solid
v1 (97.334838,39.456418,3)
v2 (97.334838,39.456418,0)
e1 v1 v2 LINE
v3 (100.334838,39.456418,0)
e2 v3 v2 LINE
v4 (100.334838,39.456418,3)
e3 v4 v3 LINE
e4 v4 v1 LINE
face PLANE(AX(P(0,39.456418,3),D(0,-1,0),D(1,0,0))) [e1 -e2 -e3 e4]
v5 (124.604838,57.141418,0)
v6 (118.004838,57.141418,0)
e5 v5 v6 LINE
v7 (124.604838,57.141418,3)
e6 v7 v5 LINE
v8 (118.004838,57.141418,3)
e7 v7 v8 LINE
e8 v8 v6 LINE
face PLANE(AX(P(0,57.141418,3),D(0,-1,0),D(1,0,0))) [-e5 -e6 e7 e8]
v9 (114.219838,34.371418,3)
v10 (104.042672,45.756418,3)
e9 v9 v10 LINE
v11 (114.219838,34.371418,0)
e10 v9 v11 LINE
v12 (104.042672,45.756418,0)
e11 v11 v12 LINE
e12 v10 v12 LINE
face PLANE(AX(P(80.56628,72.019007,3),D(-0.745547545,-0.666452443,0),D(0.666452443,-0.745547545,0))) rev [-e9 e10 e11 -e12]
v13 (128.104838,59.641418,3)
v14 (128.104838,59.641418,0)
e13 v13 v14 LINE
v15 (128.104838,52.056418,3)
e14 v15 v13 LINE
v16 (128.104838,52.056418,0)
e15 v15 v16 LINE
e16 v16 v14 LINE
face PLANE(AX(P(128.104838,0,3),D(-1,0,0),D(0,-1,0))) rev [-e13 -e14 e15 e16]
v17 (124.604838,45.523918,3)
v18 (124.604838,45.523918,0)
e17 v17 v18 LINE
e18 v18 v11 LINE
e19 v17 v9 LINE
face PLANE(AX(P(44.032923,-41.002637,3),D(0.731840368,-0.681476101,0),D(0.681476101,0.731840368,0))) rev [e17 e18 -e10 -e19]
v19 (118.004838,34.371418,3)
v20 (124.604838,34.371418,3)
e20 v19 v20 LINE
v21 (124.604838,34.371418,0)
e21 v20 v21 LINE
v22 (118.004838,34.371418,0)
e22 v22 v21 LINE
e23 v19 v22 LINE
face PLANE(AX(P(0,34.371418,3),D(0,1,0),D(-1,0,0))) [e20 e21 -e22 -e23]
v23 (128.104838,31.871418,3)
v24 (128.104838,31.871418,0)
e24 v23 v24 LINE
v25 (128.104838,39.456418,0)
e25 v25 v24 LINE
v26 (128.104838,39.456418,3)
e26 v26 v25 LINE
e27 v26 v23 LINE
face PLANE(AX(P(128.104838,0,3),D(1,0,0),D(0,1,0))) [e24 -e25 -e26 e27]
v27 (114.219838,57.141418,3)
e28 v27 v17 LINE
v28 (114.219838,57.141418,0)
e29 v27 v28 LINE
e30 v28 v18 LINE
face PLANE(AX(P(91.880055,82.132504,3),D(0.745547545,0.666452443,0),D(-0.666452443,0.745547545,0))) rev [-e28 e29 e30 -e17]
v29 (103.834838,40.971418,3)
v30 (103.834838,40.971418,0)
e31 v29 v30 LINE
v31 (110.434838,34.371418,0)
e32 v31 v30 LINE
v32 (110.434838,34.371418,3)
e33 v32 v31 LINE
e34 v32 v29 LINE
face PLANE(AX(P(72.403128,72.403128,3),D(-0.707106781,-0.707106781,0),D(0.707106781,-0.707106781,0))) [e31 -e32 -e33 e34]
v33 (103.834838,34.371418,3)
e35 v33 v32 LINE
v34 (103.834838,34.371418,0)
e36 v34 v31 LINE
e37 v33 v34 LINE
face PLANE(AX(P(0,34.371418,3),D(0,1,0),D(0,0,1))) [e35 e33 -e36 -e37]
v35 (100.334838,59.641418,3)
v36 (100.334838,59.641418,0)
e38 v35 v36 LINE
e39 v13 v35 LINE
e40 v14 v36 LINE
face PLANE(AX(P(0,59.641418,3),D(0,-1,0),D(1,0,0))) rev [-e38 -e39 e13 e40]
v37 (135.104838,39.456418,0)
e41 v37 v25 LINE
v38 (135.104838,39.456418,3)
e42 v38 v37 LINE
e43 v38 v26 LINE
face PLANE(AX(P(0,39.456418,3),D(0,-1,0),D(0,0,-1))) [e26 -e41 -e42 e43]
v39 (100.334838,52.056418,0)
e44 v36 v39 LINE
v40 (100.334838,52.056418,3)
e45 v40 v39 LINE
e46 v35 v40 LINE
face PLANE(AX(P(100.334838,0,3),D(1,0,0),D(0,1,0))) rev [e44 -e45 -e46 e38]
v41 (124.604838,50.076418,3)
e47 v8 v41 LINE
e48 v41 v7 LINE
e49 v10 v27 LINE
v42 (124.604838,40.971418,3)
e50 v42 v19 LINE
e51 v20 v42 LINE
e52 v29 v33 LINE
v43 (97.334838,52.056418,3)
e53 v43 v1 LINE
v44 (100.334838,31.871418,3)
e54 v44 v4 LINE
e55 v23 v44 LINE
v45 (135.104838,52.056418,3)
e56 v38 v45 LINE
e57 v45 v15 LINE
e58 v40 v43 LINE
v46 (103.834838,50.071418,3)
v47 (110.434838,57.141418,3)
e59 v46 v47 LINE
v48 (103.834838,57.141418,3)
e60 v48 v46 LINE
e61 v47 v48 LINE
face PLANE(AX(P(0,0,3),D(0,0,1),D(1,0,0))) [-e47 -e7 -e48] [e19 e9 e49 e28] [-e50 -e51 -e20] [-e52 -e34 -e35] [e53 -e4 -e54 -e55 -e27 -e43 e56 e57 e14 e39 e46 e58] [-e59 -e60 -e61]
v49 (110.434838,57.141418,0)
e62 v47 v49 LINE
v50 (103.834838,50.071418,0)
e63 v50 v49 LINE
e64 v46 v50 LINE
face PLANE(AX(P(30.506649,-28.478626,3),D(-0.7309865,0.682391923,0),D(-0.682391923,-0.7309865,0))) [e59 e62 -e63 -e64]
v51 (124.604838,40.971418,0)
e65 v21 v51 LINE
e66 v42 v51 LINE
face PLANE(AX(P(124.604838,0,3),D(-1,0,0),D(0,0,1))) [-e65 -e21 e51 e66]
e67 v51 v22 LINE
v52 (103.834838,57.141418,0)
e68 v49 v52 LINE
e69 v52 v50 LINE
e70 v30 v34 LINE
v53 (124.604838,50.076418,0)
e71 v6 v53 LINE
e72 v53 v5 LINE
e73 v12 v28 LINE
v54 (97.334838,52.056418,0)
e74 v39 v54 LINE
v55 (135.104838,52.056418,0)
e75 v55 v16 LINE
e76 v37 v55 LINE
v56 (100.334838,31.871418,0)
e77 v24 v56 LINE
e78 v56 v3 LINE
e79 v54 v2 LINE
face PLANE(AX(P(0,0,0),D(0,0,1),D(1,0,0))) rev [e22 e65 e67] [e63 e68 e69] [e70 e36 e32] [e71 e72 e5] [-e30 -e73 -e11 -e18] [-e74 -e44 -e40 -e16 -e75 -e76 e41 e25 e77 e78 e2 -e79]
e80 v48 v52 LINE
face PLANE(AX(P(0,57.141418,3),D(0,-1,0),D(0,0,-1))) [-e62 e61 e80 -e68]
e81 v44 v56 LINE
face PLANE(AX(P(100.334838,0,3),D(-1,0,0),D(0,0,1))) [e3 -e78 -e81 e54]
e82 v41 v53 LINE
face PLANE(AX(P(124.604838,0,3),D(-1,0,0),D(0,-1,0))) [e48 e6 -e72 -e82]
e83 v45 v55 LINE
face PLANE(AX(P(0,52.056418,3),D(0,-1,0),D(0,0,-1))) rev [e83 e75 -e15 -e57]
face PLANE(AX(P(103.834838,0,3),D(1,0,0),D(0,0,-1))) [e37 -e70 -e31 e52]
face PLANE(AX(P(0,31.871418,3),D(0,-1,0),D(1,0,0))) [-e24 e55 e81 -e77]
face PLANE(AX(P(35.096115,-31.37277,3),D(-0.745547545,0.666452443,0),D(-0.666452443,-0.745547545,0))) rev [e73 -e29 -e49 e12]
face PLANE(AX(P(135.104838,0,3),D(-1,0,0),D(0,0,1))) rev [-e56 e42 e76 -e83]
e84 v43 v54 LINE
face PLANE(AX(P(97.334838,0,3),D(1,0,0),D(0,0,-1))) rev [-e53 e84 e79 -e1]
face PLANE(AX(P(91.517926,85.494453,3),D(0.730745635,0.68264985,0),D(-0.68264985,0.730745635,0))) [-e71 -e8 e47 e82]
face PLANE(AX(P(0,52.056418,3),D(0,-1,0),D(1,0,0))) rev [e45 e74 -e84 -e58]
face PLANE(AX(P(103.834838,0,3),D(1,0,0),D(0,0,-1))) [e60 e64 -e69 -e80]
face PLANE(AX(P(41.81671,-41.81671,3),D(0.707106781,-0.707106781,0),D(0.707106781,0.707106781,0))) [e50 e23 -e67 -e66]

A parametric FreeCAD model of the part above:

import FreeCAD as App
import Part
import Sketcher
from FreeCAD import Vector

doc = App.newDocument("Part")
body = doc.addObject("PartDesign::Body", "Body")

# Sketch on XY plane
sketch1 = body.newObject("Sketcher::SketchObject", "Sketch")
sketch1.AttachmentSupport = (doc.getObject("XY_Plane"), [""])
sketch1.MapMode = "FlatFace"
sketch1.addGeometry([
    Part.LineSegment(Vector(97.334838, 52.056418, 0), Vector(97.334838, 39.456418, 0)),  # 0
    Part.LineSegment(Vector(97.334838, 39.456418, 0), Vector(100.334838, 39.456418, 0)),  # 1
    Part.LineSegment(Vector(100.334838, 39.456418, 0), Vector(100.334838, 31.871418, 0)),  # 2
    Part.LineSegment(Vector(100.334838, 31.871418, 0), Vector(128.104838, 31.871418, 0)),  # 3
    Part.LineSegment(Vector(128.104838, 31.871418, 0), Vector(128.104838, 39.456418, 0)),  # 4
    Part.LineSegment(Vector(128.104838, 39.456418, 0), Vector(135.104838, 39.456418, 0)),  # 5
    Part.LineSegment(Vector(135.104838, 39.456418, 0), Vector(135.104838, 52.056418, 0)),  # 6
    Part.LineSegment(Vector(135.104838, 52.056418, 0), Vector(128.104838, 52.056418, 0)),  # 7
    Part.LineSegment(Vector(128.104838, 52.056418, 0), Vector(128.104838, 59.641418, 0)),  # 8
    Part.LineSegment(Vector(128.104838, 59.641418, 0), Vector(100.334838, 59.641418, 0)),  # 9
    Part.LineSegment(Vector(100.334838, 59.641418, 0), Vector(100.334838, 52.056418, 0)),  # 10
    Part.LineSegment(Vector(100.334838, 52.056418, 0), Vector(97.334838, 52.056418, 0)),  # 11
    Part.LineSegment(Vector(103.834838, 34.371418, 0), Vector(103.834838, 40.971418, 0)),  # 12
    Part.LineSegment(Vector(103.834838, 40.971418, 0), Vector(110.434838, 34.371418, 0)),  # 13
    Part.LineSegment(Vector(110.434838, 34.371418, 0), Vector(103.834838, 34.371418, 0)),  # 14
    Part.LineSegment(Vector(124.604838, 34.371418, 0), Vector(118.004838, 34.371418, 0)),  # 15
    Part.LineSegment(Vector(118.004838, 34.371418, 0), Vector(124.604838, 40.971418, 0)),  # 16
    Part.LineSegment(Vector(124.604838, 40.971418, 0), Vector(124.604838, 34.371418, 0)),  # 17
    Part.LineSegment(Vector(103.834838, 57.141418, 0), Vector(110.434838, 57.141418, 0)),  # 18
    Part.LineSegment(Vector(110.434838, 57.141418, 0), Vector(103.834838, 50.071418, 0)),  # 19
    Part.LineSegment(Vector(103.834838, 50.071418, 0), Vector(103.834838, 57.141418, 0)),  # 20
    Part.LineSegment(Vector(104.042672, 45.756418, 0), Vector(114.219838, 57.141418, 0)),  # 21
    Part.LineSegment(Vector(114.219838, 57.141418, 0), Vector(124.604838, 45.523918, 0)),  # 22
    Part.LineSegment(Vector(124.604838, 45.523918, 0), Vector(114.219838, 34.371418, 0)),  # 23
    Part.LineSegment(Vector(114.219838, 34.371418, 0), Vector(104.042672, 45.756418, 0)),  # 24
    Part.LineSegment(Vector(124.604838, 57.141418, 0), Vector(124.604838, 50.076418, 0)),  # 25
    Part.LineSegment(Vector(124.604838, 50.076418, 0), Vector(118.004838, 57.141418, 0)),  # 26
    Part.LineSegment(Vector(118.004838, 57.141418, 0), Vector(124.604838, 57.141418, 0)),  # 27
], False)
sketch1.addConstraint([
    Sketcher.Constraint("Coincident", 0, 2, 1, 1),
    Sketcher.Constraint("Coincident", 1, 2, 2, 1),
    Sketcher.Constraint("Coincident", 2, 2, 3, 1),
    Sketcher.Constraint("Coincident", 3, 2, 4, 1),
    Sketcher.Constraint("Coincident", 4, 2, 5, 1),
    Sketcher.Constraint("Coincident", 5, 2, 6, 1),
    Sketcher.Constraint("Coincident", 6, 2, 7, 1),
    Sketcher.Constraint("Coincident", 7, 2, 8, 1),
    Sketcher.Constraint("Coincident", 8, 2, 9, 1),
    Sketcher.Constraint("Coincident", 9, 2, 10, 1),
    Sketcher.Constraint("Coincident", 10, 2, 11, 1),
    Sketcher.Constraint("Coincident", 11, 2, 0, 1),
    Sketcher.Constraint("Coincident", 12, 2, 13, 1),
    Sketcher.Constraint("Coincident", 13, 2, 14, 1),
    Sketcher.Constraint("Coincident", 14, 2, 12, 1),
    Sketcher.Constraint("Coincident", 15, 2, 16, 1),
    Sketcher.Constraint("Coincident", 16, 2, 17, 1),
    Sketcher.Constraint("Coincident", 17, 2, 15, 1),
    Sketcher.Constraint("Coincident", 18, 2, 19, 1),
    Sketcher.Constraint("Coincident", 19, 2, 20, 1),
    Sketcher.Constraint("Coincident", 20, 2, 18, 1),
    Sketcher.Constraint("Coincident", 21, 2, 22, 1),
    Sketcher.Constraint("Coincident", 22, 2, 23, 1),
    Sketcher.Constraint("Coincident", 23, 2, 24, 1),
    Sketcher.Constraint("Coincident", 24, 2, 21, 1),
    Sketcher.Constraint("Coincident", 25, 2, 26, 1),
    Sketcher.Constraint("Coincident", 26, 2, 27, 1),
    Sketcher.Constraint("Coincident", 27, 2, 25, 1),
    Sketcher.Constraint("Vertical", 0),
    Sketcher.Constraint("Horizontal", 1),
    Sketcher.Constraint("Vertical", 2),
    Sketcher.Constraint("Horizontal", 3),
    Sketcher.Constraint("Vertical", 4),
    Sketcher.Constraint("Horizontal", 5),
    Sketcher.Constraint("Vertical", 6),
    Sketcher.Constraint("Horizontal", 7),
    Sketcher.Constraint("Vertical", 8),
    Sketcher.Constraint("Horizontal", 9),
    Sketcher.Constraint("Vertical", 10),
    Sketcher.Constraint("Horizontal", 11),
    Sketcher.Constraint("Vertical", 12),
    Sketcher.Constraint("Horizontal", 14),
    Sketcher.Constraint("Horizontal", 15),
    Sketcher.Constraint("Vertical", 17),
    Sketcher.Constraint("Horizontal", 18),
    Sketcher.Constraint("Vertical", 20),
    Sketcher.Constraint("Vertical", 25),
    Sketcher.Constraint("Horizontal", 27),
    Sketcher.Constraint("Perpendicular", 13, 16),
    Sketcher.Constraint("Parallel", 22, 24),
    Sketcher.Constraint("Horizontal", 1, 2, 4, 2),
    Sketcher.Constraint("Horizontal", 7, 2, 10, 2),
    Sketcher.Constraint("Horizontal", 14, 2, 15, 2),
    Sketcher.Constraint("Horizontal", 12, 2, 16, 2),
    Sketcher.Constraint("Horizontal", 20, 2, 21, 2),
    Sketcher.Constraint("Horizontal", 17, 2, 23, 2),
    Sketcher.Constraint("Horizontal", 21, 2, 26, 2),
    Sketcher.Constraint("Vertical", 4, 2, 7, 2),
    Sketcher.Constraint("Vertical", 2, 2, 9, 2),
    Sketcher.Constraint("Vertical", 13, 2, 18, 2),
    Sketcher.Constraint("Vertical", 14, 2, 19, 2),
    Sketcher.Constraint("Vertical", 17, 2, 22, 2),
    Sketcher.Constraint("Vertical", 21, 2, 23, 2),
    Sketcher.Constraint("Vertical", 22, 2, 25, 2),
    Sketcher.Constraint("Vertical", 15, 2, 26, 2),
    Sketcher.Constraint("Equal", 14, 15),
    Sketcher.Constraint("Equal", 4, 8),
    Sketcher.Constraint("Equal", 21, 24),
    Sketcher.Constraint("DistanceX", 1, 1, 1, 2, 3.0),
    Sketcher.Constraint("DistanceX", 5, 1, 5, 2, 7.0),
    Sketcher.Constraint("DistanceX", 14, 2, 14, 1, 6.6),
    Sketcher.Constraint("DistanceY", 0, 2, 0, 1, 12.6),
    Sketcher.Constraint("DistanceX", 3, 1, 3, 2, 27.77),
    Sketcher.Constraint("DistanceY", 20, 1, 20, 2, 7.07),
    Sketcher.Constraint("DistanceX", 1, 2, 12, 2, 3.5),
    Sketcher.Constraint("DistanceY", 2, 2, 12, 2, 9.1),
    Sketcher.Constraint("DistanceX", 15, 2, 3, 2, 10.1),
    Sketcher.Constraint("DistanceY", 18, 2, 9, 2, 2.5),
    Sketcher.Constraint("DistanceY", 12, 2, 19, 2, 9.1),
    Sketcher.Constraint("DistanceY", 25, 2, 25, 1, 7.065),
    Sketcher.Constraint("DistanceX", 18, 2, 21, 2, 3.785),
    Sketcher.Constraint("DistanceY", 16, 2, 22, 2, 4.5525),
    Sketcher.Constraint("DistanceY", -1, 1, 0, 2, 39.456418),
    Sketcher.Constraint("DistanceX", -1, 1, 24, 2, 104.042672),
])
pad1 = body.newObject("PartDesign::Pad", "Pad")
pad1.Profile = sketch1
pad1.Length = 3

doc.recompute()
